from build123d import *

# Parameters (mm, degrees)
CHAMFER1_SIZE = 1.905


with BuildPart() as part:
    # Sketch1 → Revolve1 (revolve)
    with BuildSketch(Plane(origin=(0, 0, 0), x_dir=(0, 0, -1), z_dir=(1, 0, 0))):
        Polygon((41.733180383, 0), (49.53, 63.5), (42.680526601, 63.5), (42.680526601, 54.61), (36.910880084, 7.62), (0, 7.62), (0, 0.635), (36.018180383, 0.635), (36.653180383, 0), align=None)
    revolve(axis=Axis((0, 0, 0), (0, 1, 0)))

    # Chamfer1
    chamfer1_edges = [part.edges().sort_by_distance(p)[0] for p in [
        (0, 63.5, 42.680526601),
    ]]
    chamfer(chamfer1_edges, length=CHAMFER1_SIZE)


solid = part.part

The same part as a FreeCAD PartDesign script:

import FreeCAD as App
import Part
import Sketcher

V = App.Vector
Q = App.Units.Quantity


def edges_at(feature, points):
    """Names of the edges that pass closest to the given points."""
    edges = feature.Shape.Edges
    near = lambda p: min(range(len(edges)), key=lambda i: edges[i].distToShape(Part.Vertex(*p))[0])
    return sorted({f"Edge{near(p) + 1}" for p in points})

doc = App.newDocument("Part")
params = doc.addObject("Spreadsheet::Sheet", "Params")
for row, (alias, value) in enumerate([
    ("sketch1_height", "0.2 in"),
    ("sketch1_width", "0.35 in"),
    ("sketch1_width2", "0.275 in"),
    ("revolution_angle", "360 deg"),
    ("chamfer_size", "0.075 in"),
], start=1):
    params.set(f"A{row}", alias)
    params.set(f"B{row}", "=" + value)
    params.setAlias(f"B{row}", alias)

body = doc.addObject("PartDesign::Body", "Body")

sketch1 = body.newObject("Sketcher::SketchObject", "Sketch")
sketch1.AttachmentSupport = (doc.getObject("YZ_Plane"), [""])
sketch1.MapMode = "FlatFace"
sketch1.addGeometry(Part.LineSegment(V(0, -41.7, 0), V(63.5, -49.5, 0)), False)
sketch1.addGeometry(Part.LineSegment(V(63.5, -49.5, 0), V(63.5, -42.7, 0)), False)
sketch1.addGeometry(Part.LineSegment(V(63.5, -42.7, 0), V(54.6, -42.7, 0)), False)
sketch1.addGeometry(Part.LineSegment(V(54.6, -42.7, 0), V(7.6, -36.9, 0)), False)
sketch1.addGeometry(Part.LineSegment(V(7.6, -36.9, 0), V(7.6, 0, 0)), False)
sketch1.addGeometry(Part.LineSegment(V(7.6, 0, 0), V(0.6, 0, 0)), False)
sketch1.addGeometry(Part.LineSegment(V(0.6, 0, 0), V(0.6, -36, 0)), False)
sketch1.addGeometry(Part.LineSegment(V(0.6, -36, 0), V(0, -36.7, 0)), False)
sketch1.addGeometry(Part.LineSegment(V(0, -36.7, 0), V(0, -41.7, 0)), False)
sketch1.addConstraint(Sketcher.Constraint("Coincident", 0, 2, 1, 1))
sketch1.addConstraint(Sketcher.Constraint("Coincident", 1, 2, 2, 1))
sketch1.addConstraint(Sketcher.Constraint("Coincident", 2, 2, 3, 1))
sketch1.addConstraint(Sketcher.Constraint("Coincident", 3, 2, 4, 1))
sketch1.addConstraint(Sketcher.Constraint("Coincident", 4, 2, 5, 1))
sketch1.addConstraint(Sketcher.Constraint("Coincident", 5, 2, 6, 1))
sketch1.addConstraint(Sketcher.Constraint("Coincident", 6, 2, 7, 1))
sketch1.addConstraint(Sketcher.Constraint("Coincident", 7, 2, 8, 1))
sketch1.addConstraint(Sketcher.Constraint("Coincident", 8, 2, 0, 1))
sketch1.addConstraint(Sketcher.Constraint("Vertical", 1))
sketch1.addConstraint(Sketcher.Constraint("Horizontal", 2))
sketch1.addConstraint(Sketcher.Constraint("Vertical", 4))
sketch1.addConstraint(Sketcher.Constraint("Horizontal", 5))
sketch1.addConstraint(Sketcher.Constraint("Vertical", 6))
sketch1.addConstraint(Sketcher.Constraint("Vertical", 8))
sketch1.addConstraint(Sketcher.Constraint("PointOnObject", 4, 2, -1))
sketch1.addConstraint(Sketcher.Constraint("PointOnObject", 7, 2, -2))
sketch1.addConstraint(Sketcher.Constraint("Parallel", 0, 3))
sketch1.addConstraint(Sketcher.Constraint("DistanceY", 8, 2, 8, 1, Q("0.2 in")))
sketch1.addConstraint(Sketcher.Constraint("Angle", 0, Q("-7 deg")))
sketch1.addConstraint(Sketcher.Constraint("Angle", 7, Q("-135 deg")))
sketch1.addConstraint(Sketcher.Constraint("DistanceX", 2, 2, 2, 1, Q("0.35 in")))
sketch1.addConstraint(Sketcher.Constraint("DistanceX", -1, 1, 0, 2, Q("2.5 in")))
sketch1.addConstraint(Sketcher.Constraint("DistanceX", -1, 1, 3, 2, Q("0.3 in")))
sketch1.addConstraint(Sketcher.Constraint("DistanceX", 5, 2, 5, 1, Q("0.275 in")))
sketch1.addConstraint(Sketcher.Constraint("DistanceY", 0, 2, -1, 1, Q("1.95 in")))
sketch1.addConstraint(Sketcher.Constraint("DistanceY", 4, 1, 4, 2, Q("36.91088 mm")))
sketch1.setExpression("Constraints[18]", "Params.sketch1_height")
sketch1.setExpression("Constraints[21]", "Params.sketch1_width")
sketch1.setExpression("Constraints[24]", "Params.sketch1_width2")
revolution = body.newObject("PartDesign::Revolution", "Revolution")
revolution.Profile = sketch1
revolution.ReferenceAxis = (sketch1, ["H_Axis"])
revolution.setExpression("Angle", "Params.revolution_angle")
doc.recompute()

chamfer = body.newObject("PartDesign::Chamfer", "Chamfer")
chamfer.Base = (revolution, edges_at(revolution, [(0, 63.5, 42.681)]))
chamfer.setExpression("Size", "Params.chamfer_size")

doc.recompute()
